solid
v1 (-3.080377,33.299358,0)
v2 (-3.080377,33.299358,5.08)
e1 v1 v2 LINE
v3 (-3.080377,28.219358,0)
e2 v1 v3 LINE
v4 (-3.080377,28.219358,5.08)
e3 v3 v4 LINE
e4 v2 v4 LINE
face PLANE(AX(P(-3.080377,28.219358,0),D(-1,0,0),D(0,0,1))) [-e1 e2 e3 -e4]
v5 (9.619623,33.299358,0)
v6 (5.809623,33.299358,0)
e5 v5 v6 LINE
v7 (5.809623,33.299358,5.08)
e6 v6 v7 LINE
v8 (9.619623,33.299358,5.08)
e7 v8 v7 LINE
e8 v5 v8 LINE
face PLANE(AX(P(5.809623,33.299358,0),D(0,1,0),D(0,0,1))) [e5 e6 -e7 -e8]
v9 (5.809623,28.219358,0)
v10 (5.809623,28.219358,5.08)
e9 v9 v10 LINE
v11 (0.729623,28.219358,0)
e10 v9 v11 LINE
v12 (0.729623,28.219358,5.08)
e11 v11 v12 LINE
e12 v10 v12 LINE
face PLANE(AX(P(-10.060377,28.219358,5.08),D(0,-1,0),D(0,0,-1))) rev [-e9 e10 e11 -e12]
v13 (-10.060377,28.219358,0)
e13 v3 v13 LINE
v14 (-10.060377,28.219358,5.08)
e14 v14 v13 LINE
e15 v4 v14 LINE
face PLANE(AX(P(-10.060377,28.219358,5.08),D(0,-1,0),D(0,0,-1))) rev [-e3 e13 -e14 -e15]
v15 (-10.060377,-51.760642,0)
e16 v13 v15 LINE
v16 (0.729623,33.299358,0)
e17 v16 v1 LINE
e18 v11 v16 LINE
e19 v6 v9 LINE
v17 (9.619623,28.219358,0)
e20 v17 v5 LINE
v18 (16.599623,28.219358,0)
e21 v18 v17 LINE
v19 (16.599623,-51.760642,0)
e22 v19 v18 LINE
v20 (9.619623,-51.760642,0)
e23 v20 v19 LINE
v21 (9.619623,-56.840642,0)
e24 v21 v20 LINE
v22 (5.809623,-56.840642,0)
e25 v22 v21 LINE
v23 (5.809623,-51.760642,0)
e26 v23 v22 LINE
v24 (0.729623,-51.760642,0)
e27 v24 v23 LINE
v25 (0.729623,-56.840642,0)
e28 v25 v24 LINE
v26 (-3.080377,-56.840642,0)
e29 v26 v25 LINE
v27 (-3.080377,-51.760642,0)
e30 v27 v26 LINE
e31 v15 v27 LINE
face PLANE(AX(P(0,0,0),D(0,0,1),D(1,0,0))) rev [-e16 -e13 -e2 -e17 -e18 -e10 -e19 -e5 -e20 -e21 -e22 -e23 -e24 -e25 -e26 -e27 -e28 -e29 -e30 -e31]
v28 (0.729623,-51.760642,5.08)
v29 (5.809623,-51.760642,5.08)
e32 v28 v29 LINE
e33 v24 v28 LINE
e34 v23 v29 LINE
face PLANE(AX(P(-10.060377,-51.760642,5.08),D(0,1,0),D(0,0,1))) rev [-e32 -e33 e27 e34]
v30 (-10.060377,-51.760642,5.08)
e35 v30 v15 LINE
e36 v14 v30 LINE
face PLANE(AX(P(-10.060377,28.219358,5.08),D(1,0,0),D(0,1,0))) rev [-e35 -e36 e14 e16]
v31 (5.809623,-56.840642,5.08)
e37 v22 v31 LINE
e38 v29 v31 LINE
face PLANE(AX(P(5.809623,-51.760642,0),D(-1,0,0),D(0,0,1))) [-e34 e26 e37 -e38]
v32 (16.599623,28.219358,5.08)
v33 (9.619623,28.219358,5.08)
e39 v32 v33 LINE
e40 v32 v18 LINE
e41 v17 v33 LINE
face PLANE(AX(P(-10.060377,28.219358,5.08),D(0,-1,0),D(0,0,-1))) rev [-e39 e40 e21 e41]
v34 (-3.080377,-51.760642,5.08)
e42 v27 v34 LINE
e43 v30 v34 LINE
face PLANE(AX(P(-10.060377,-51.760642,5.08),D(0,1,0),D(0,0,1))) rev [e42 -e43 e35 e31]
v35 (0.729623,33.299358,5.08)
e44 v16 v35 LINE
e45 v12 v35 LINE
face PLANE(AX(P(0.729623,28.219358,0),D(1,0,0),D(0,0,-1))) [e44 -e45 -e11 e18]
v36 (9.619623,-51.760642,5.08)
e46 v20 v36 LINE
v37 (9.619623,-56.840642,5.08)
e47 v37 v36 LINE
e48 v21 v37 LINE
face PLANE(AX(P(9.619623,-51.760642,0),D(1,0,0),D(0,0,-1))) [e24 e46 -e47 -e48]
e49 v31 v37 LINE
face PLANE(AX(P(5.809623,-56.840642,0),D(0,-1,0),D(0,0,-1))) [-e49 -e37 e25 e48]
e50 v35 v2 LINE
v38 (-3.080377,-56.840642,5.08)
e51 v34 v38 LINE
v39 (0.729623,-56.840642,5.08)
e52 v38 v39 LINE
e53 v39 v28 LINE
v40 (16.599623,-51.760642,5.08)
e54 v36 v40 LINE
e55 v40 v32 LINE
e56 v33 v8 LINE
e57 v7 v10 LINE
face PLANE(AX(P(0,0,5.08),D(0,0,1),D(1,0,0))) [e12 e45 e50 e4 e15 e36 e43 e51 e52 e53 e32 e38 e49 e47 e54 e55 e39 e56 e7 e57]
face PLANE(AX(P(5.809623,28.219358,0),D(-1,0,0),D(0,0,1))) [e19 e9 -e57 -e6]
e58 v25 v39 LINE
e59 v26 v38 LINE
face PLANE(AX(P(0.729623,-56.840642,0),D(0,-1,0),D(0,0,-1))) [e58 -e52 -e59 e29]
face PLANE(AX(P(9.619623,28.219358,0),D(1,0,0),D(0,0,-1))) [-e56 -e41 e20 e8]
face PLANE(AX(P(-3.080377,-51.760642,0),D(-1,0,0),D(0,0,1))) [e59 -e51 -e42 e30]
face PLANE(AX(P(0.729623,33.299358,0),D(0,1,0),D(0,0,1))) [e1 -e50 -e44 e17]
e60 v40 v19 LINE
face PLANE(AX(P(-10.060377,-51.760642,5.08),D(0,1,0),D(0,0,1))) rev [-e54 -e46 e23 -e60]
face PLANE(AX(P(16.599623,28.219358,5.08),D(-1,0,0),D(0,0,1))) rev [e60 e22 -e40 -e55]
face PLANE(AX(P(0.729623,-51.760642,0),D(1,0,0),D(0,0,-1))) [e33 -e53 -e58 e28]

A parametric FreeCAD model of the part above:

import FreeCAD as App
import Part
import Sketcher

V = App.Vector
Q = App.Units.Quantity

doc = App.newDocument("Part")
params = doc.addObject("Spreadsheet::Sheet", "Params")
for row, (alias, value) in enumerate([
    ("pad1_length", "0.2 in"),
    ("sketch2_height", "0.2 in"),
    ("sketch2_width", "0.15 in"),
    ("pad2_length", "0.2 in"),
], start=1):
    params.set(f"A{row}", alias)
    params.set(f"B{row}", "=" + value)
    params.setAlias(f"B{row}", alias)

body = doc.addObject("PartDesign::Body", "Body")

sketch1 = doc.addObject("Sketcher::SketchObject", "Sketch")
body.addObject(sketch1)
sketch1.AttachmentSupport = (doc.XY_Plane, [""])
sketch1.MapMode = "FlatFace"
sketch1.addGeometry(Part.LineSegment(V(-10, 28, 0), V(-10, -52, 0)), False)
sketch1.addGeometry(Part.LineSegment(V(-10, -52, 0), V(17, -52, 0)), False)
sketch1.addGeometry(Part.LineSegment(V(17, -52, 0), V(17, 28, 0)), False)
sketch1.addGeometry(Part.LineSegment(V(17, 28, 0), V(-10, 28, 0)), False)
sketch1.addConstraint(Sketcher.Constraint("Coincident", 0, 2, 1, 1))
sketch1.addConstraint(Sketcher.Constraint("Coincident", 1, 2, 2, 1))
sketch1.addConstraint(Sketcher.Constraint("Coincident", 2, 2, 3, 1))
sketch1.addConstraint(Sketcher.Constraint("Coincident", 3, 2, 0, 1))
sketch1.addConstraint(Sketcher.Constraint("Vertical", 0))
sketch1.addConstraint(Sketcher.Constraint("Horizontal", 1))
sketch1.addConstraint(Sketcher.Constraint("Vertical", 2))
sketch1.addConstraint(Sketcher.Constraint("Horizontal", 3))
sketch1.addConstraint(Sketcher.Constraint("DistanceX", 1, 1, 1, 2, Q("26.66 mm")))
sketch1.addConstraint(Sketcher.Constraint("DistanceY", 0, 2, 0, 1, Q("79.98 mm")))
sketch1.addConstraint(Sketcher.Constraint("DistanceY", 0, 2, -1, 1, Q("51.760642 mm")))
sketch1.addConstraint(Sketcher.Constraint("DistanceX", 0, 2, -1, 1, Q("10.060377 mm")))
pad1 = doc.addObject("PartDesign::Pad", "Pad")
body.addObject(pad1)
pad1.Profile = sketch1
pad1.setExpression("Length", "Params.pad1_length")

sketch2 = doc.addObject("Sketcher::SketchObject", "Sketch001")
body.addObject(sketch2)
sketch2.AttachmentSupport = (doc.XY_Plane, [""])
sketch2.MapMode = "FlatFace"
sketch2.AttachmentOffset = App.Placement(V(0, 0, 0.2 * 25.4), App.Rotation())
sketch2.addGeometry(Part.LineSegment(V(-3.1, -51.8, 0), V(-3.1, -56.8, 0)), False)
sketch2.addGeometry(Part.LineSegment(V(-3.1, -56.8, 0), V(0.7, -56.8, 0)), False)
sketch2.addGeometry(Part.LineSegment(V(0.7, -56.8, 0), V(0.7, -51.8, 0)), False)
sketch2.addGeometry(Part.LineSegment(V(0.7, -51.8, 0), V(-3.1, -51.8, 0)), False)
sketch2.addGeometry(Part.LineSegment(V(5.8, 33.3, 0), V(5.8, 28.2, 0)), False)
sketch2.addGeometry(Part.LineSegment(V(5.8, 28.2, 0), V(9.6, 28.2, 0)), False)
sketch2.addGeometry(Part.LineSegment(V(9.6, 28.2, 0), V(9.6, 33.3, 0)), False)
sketch2.addGeometry(Part.LineSegment(V(9.6, 33.3, 0), V(5.8, 33.3, 0)), False)
sketch2.addGeometry(Part.LineSegment(V(-3.1, 33.3, 0), V(-3.1, 28.2, 0)), False)
sketch2.addGeometry(Part.LineSegment(V(-3.1, 28.2, 0), V(0.7, 28.2, 0)), False)
sketch2.addGeometry(Part.LineSegment(V(0.7, 28.2, 0), V(0.7, 33.3, 0)), False)
sketch2.addGeometry(Part.LineSegment(V(0.7, 33.3, 0), V(-3.1, 33.3, 0)), False)
sketch2.addGeometry(Part.LineSegment(V(5.8, -51.8, 0), V(5.8, -56.8, 0)), False)
sketch2.addGeometry(Part.LineSegment(V(5.8, -56.8, 0), V(9.6, -56.8, 0)), False)
sketch2.addGeometry(Part.LineSegment(V(9.6, -56.8, 0), V(9.6, -51.8, 0)), False)
sketch2.addGeometry(Part.LineSegment(V(9.6, -51.8, 0), V(5.8, -51.8, 0)), False)
sketch2.addConstraint(Sketcher.Constraint("Coincident", 0, 2, 1, 1))
sketch2.addConstraint(Sketcher.Constraint("Coincident", 1, 2, 2, 1))
sketch2.addConstraint(Sketcher.Constraint("Coincident", 2, 2, 3, 1))
sketch2.addConstraint(Sketcher.Constraint("Coincident", 3, 2, 0, 1))
sketch2.addConstraint(Sketcher.Constraint("Coincident", 4, 2, 5, 1))
sketch2.addConstraint(Sketcher.Constraint("Coincident", 5, 2, 6, 1))
sketch2.addConstraint(Sketcher.Constraint("Coincident", 6, 2, 7, 1))
sketch2.addConstraint(Sketcher.Constraint("Coincident", 7, 2, 4, 1))
sketch2.addConstraint(Sketcher.Constraint("Coincident", 8, 2, 9, 1))
sketch2.addConstraint(Sketcher.Constraint("Coincident", 9, 2, 10, 1))
sketch2.addConstraint(Sketcher.Constraint("Coincident", 10, 2, 11, 1))
sketch2.addConstraint(Sketcher.Constraint("Coincident", 11, 2, 8, 1))
sketch2.addConstraint(Sketcher.Constraint("Coincident", 12, 2, 13, 1))
sketch2.addConstraint(Sketcher.Constraint("Coincident", 13, 2, 14, 1))
sketch2.addConstraint(Sketcher.Constraint("Coincident", 14, 2, 15, 1))
sketch2.addConstraint(Sketcher.Constraint("Coincident", 15, 2, 12, 1))
sketch2.addConstraint(Sketcher.Constraint("Vertical", 0))
sketch2.addConstraint(Sketcher.Constraint("Horizontal", 1))
sketch2.addConstraint(Sketcher.Constraint("Vertical", 2))
sketch2.addConstraint(Sketcher.Constraint("Horizontal", 3))
sketch2.addConstraint(Sketcher.Constraint("Vertical", 4))
sketch2.addConstraint(Sketcher.Constraint("Horizontal", 5))
sketch2.addConstraint(Sketcher.Constraint("Vertical", 6))
sketch2.addConstraint(Sketcher.Constraint("Horizontal", 7))
sketch2.addConstraint(Sketcher.Constraint("Vertical", 8))
sketch2.addConstraint(Sketcher.Constraint("Horizontal", 9))
sketch2.addConstraint(Sketcher.Constraint("Vertical", 10))
sketch2.addConstraint(Sketcher.Constraint("Horizontal", 11))
sketch2.addConstraint(Sketcher.Constraint("Vertical", 12))
sketch2.addConstraint(Sketcher.Constraint("Horizontal", 13))
sketch2.addConstraint(Sketcher.Constraint("Vertical", 14))
sketch2.addConstraint(Sketcher.Constraint("Horizontal", 15))
sketch2.addConstraint(Sketcher.Constraint("Horizontal", 5, 2, 8, 2))
sketch2.addConstraint(Sketcher.Constraint("Horizontal", 7, 2, 10, 2))
sketch2.addConstraint(Sketcher.Constraint("Horizontal", 1, 2, 12, 2))
sketch2.addConstraint(Sketcher.Constraint("Horizontal", 3, 2, 14, 2))
sketch2.addConstraint(Sketcher.Constraint("Vertical", 3, 2, 8, 2))
sketch2.addConstraint(Sketcher.Constraint("Vertical", 2, 2, 9, 2))
sketch2.addConstraint(Sketcher.Constraint("Vertical", 7, 2, 12, 2))
sketch2.addConstraint(Sketcher.Constraint("Vertical", 6, 2, 13, 2))
sketch2.addConstraint(Sketcher.Constraint("Equal", 3, 5))
sketch2.addConstraint(Sketcher.Constraint("Equal", 2, 4))
sketch2.addConstraint(Sketcher.Constraint("DistanceY", 0, 2, 0, 1, Q("0.2 in")))
sketch2.addConstraint(Sketcher.Constraint("DistanceX", 1, 1, 1, 2, Q("0.15 in")))
sketch2.addConstraint(Sketcher.Constraint("DistanceX", 2, 2, 4, 2, Q("0.2 in")))
sketch2.addConstraint(Sketcher.Constraint("DistanceY", 2, 2, 4, 2, Q("79.98 mm")))
sketch2.addConstraint(Sketcher.Constraint("DistanceY", 0, 2, -1, 1, Q("56.840642 mm")))
sketch2.addConstraint(Sketcher.Constraint("DistanceX", 0, 2, -1, 1, Q("3.080377 mm")))
sketch2.setExpression("Constraints[42]", "Params.sketch2_height")
sketch2.setExpression("Constraints[43]", "Params.sketch2_width")
pad2 = doc.addObject("PartDesign::Pad", "Pad001")
body.addObject(pad2)
pad2.Profile = sketch2
pad2.setExpression("Length", "Params.pad2_length")
pad2.Reversed = True

doc.recompute()
